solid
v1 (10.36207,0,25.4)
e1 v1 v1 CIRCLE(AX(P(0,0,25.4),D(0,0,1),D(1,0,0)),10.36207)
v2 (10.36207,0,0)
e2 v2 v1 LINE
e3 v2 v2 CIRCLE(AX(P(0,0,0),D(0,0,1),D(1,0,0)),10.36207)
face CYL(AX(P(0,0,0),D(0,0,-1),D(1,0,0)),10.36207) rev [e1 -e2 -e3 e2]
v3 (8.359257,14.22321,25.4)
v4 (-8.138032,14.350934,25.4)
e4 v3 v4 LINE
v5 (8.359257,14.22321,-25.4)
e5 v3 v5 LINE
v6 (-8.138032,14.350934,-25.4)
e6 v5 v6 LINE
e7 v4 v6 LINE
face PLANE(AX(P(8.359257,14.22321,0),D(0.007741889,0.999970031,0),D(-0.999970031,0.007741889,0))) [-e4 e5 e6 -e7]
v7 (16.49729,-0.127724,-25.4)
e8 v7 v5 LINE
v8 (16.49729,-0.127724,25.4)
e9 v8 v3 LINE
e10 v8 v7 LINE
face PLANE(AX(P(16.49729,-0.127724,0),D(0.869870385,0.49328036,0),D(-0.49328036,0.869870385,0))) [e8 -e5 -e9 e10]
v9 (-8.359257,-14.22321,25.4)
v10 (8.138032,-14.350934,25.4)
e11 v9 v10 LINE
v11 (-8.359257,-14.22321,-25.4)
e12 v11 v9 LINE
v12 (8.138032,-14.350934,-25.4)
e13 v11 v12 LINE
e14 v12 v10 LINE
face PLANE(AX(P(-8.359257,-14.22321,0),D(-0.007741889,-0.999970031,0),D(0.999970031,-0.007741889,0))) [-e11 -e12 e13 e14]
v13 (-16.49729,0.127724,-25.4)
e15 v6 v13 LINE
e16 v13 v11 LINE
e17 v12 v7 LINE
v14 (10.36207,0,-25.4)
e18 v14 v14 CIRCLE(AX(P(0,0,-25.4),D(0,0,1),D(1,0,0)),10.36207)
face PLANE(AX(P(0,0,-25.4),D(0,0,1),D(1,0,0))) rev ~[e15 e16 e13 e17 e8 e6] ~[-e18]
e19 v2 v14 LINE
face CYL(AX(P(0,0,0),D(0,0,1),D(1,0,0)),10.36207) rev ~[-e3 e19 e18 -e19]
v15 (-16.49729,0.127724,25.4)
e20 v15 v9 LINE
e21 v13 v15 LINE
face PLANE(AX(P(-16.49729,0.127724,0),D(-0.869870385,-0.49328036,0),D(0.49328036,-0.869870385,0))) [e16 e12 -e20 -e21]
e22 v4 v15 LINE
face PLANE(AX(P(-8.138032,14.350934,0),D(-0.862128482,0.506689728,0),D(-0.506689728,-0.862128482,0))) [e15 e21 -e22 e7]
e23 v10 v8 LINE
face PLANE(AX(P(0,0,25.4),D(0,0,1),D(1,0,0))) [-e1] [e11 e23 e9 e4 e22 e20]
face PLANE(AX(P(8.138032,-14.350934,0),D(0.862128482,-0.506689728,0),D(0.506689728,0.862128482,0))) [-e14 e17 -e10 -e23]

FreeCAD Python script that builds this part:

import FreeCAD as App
import Part
import Sketcher
from FreeCAD import Vector
Q = App.Units.Quantity


def add_polygon(sketch, points):
    """Adds a closed chain of lines whose ends are joined by coincident constraints."""
    first, n = sketch.GeometryCount, len(points)
    for a, b in zip(points, points[1:] + points[:1]):
        sketch.addGeometry(Part.LineSegment(App.Vector(*a, 0), App.Vector(*b, 0)), False)
    for i in range(n):
        sketch.addConstraint(Sketcher.Constraint("Coincident", first + i, 2, first + (i + 1) % n, 1))

doc = App.newDocument("Part")
params = doc.addObject("Spreadsheet::Sheet", "Params")
for row, (alias, value) in enumerate([
    ("pad1_length", "1 in"),
    ("pad1_length2", "1 in"),
], start=1):
    params.set(f"A{row}", alias)
    params.set(f"B{row}", "=" + value)
    params.setAlias(f"B{row}", alias)

body = doc.addObject("PartDesign::Body", "Body")

# Sketch on XY plane
sketch1 = body.newObject("Sketcher::SketchObject", "Sketch")
sketch1.AttachmentSupport = (doc.getObject("XY_Plane"), [""])
sketch1.MapMode = "FlatFace"
add_polygon(sketch1, [(-8, 14), (-16, 0), (-8, -14), (8, -14), (16, 0), (8, 14)])  # lines 0-5
sketch1.addGeometry(Part.Circle(Vector(0, 0, 0), Vector(0, 0, 1), 10), False)  # 6
sketch1.addConstraint([
    Sketcher.Constraint("Coincident", 6, 3, -1, 1),
    Sketcher.Constraint("Symmetric", 0, 2, 3, 2, -1, 1),
    Sketcher.Constraint("Symmetric", 1, 2, 4, 2, -1, 1),
    Sketcher.Constraint("Symmetric", 2, 2, 5, 2, -1, 1),
    Sketcher.Constraint("Equal", 0, 1),
    Sketcher.Constraint("Equal", 1, 2),
    Sketcher.Constraint("Diameter", 6, Q("20.72414 mm")),
    Sketcher.Constraint("DistanceX", 0, 2, -1, 1, Q("16.49729 mm")),
    Sketcher.Constraint("DistanceY", 1, 2, -1, 1, Q("14.22321 mm")),
    Sketcher.Constraint("DistanceX", 1, 2, 2, 2, Q("16.497289 mm")),
    Sketcher.Constraint("DistanceY", 2, 2, 0, 2, Q("14.478658 mm")),
])
pad1 = body.newObject("PartDesign::Pad", "Pad")
pad1.Profile = sketch1
pad1.Type = "TwoLengths"
pad1.setExpression("Length", "Params.pad1_length")
pad1.setExpression("Length2", "Params.pad1_length2")

doc.recompute()
